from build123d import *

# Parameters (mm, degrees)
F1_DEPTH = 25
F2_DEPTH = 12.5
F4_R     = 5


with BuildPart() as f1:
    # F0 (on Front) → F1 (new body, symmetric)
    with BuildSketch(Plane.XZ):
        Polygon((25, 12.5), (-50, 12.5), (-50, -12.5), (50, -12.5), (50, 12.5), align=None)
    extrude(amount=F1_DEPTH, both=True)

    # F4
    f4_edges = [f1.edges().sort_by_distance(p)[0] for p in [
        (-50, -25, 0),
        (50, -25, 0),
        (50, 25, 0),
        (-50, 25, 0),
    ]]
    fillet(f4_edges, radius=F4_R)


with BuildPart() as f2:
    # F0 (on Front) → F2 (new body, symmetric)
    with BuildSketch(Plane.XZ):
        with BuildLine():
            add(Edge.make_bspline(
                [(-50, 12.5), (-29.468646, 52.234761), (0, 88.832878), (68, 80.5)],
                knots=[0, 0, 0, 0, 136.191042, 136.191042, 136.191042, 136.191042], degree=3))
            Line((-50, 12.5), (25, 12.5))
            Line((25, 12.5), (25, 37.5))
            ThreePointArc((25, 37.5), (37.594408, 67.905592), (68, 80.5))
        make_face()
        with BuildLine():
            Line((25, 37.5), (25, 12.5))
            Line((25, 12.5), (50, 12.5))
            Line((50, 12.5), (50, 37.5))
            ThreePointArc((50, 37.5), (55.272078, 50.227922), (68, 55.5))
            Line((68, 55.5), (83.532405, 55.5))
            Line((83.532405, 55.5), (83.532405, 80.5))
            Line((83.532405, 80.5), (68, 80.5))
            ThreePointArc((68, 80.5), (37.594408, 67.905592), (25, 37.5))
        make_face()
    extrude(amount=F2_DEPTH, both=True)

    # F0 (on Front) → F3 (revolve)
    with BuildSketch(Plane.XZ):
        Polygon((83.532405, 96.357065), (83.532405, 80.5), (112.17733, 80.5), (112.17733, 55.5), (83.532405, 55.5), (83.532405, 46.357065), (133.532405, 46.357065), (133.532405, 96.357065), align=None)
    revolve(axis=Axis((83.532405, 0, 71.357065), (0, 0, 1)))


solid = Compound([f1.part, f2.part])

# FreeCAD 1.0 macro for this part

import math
import FreeCAD as App
import Part
import Sketcher

V = App.Vector
Q = App.Units.Quantity


def edges_at(feature, points):
    """Names of the edges that pass closest to the given points."""
    edges = feature.Shape.Edges
    near = lambda p: min(range(len(edges)), key=lambda i: edges[i].distToShape(Part.Vertex(*p))[0])
    return sorted({f"Edge{near(p) + 1}" for p in points})

doc = App.newDocument("Part")
body = doc.addObject("PartDesign::Body", "Body")

# Sketch on XZ plane
sketch1 = body.newObject("Sketcher::SketchObject", "Sketch")
sketch1.AttachmentSupport = (doc.getObject("XZ_Plane"), [""])
sketch1.MapMode = "FlatFace"
sketch1.addGeometry([
    Part.LineSegment(V(-50, 12, 0), V(-50, -12, 0)),
    Part.LineSegment(V(-50, -12, 0), V(50, -12, 0)),
    Part.LineSegment(V(50, -12, 0), V(50, 12, 0)),
    Part.LineSegment(V(50, 12, 0), V(-50, 12, 0)),
], False)
sketch1.addConstraint([
    Sketcher.Constraint("Coincident", 0, 2, 1, 1),
    Sketcher.Constraint("Coincident", 1, 2, 2, 1),
    Sketcher.Constraint("Coincident", 2, 2, 3, 1),
    Sketcher.Constraint("Coincident", 3, 2, 0, 1),
    Sketcher.Constraint("Vertical", 0),
    Sketcher.Constraint("Horizontal", 1),
    Sketcher.Constraint("Vertical", 2),
    Sketcher.Constraint("Horizontal", 3),
    Sketcher.Constraint("Symmetric", 0, 2, 2, 2, -1, 1),
    Sketcher.Constraint("DistanceX", 1, 1, 1, 2, Q("100 mm")),
    Sketcher.Constraint("DistanceY", 0, 2, 0, 1, Q("25 mm")),
])
pad1 = body.newObject("PartDesign::Pad", "Pad")
pad1.Profile = sketch1
pad1.Length = 50
pad1.Midplane = True
doc.recompute()

fillet = body.newObject("PartDesign::Fillet", "Fillet")
fillet.Base = (pad1, edges_at(pad1, [
    (-50, -25, 0),
    (50, -25, 0),
    (50, 25, 0),
    (-50, 25, 0),
]))
fillet.Radius = 5
body2 = doc.addObject("PartDesign::Body", "Body001")

# Sketch on XZ plane
sketch2 = body2.newObject("Sketcher::SketchObject", "Sketch001")
sketch2.AttachmentSupport = (doc.getObject("XZ_Plane001"), [""])
sketch2.MapMode = "FlatFace"
sketch2.addGeometry([
    Part.BSplineCurve([V(-50, 12.5, 0), V(-29.468646, 52.234761, 0), V(0, 88.832878, 0), V(68, 80.5, 0)], [4, 4], [0, 136.191042], False, 3, [1, 1, 1, 1], False),  # 0
    Part.LineSegment(V(-50, 12.5, 0), V(50, 12.5, 0)),  # 1
    Part.LineSegment(V(50, 12.5, 0), V(50, 37.5, 0)),  # 2
    Part.ArcOfCircle(Part.Circle(V(68, 37.5, 0), V(0, 0, 1), 18), math.radians(90.000001), math.radians(179.999999)),  # 3
    Part.LineSegment(V(68, 55.5, 0), V(83.532405, 55.5, 0)),  # 4
    Part.LineSegment(V(83.532405, 55.5, 0), V(83.532405, 80.5, 0)),  # 5
    Part.LineSegment(V(83.532405, 80.5, 0), V(68, 80.5, 0)),  # 6
], False)
sketch2.addConstraint([
    Sketcher.Constraint("Block", 0),
    Sketcher.Constraint("Coincident", 0, 1, 1, 1),
    Sketcher.Constraint("Coincident", 1, 2, 2, 1),
    Sketcher.Constraint("Tangent", 2, 2, 3, 2),
    Sketcher.Constraint("Tangent", 3, 1, 4, 1),
    Sketcher.Constraint("Coincident", 4, 2, 5, 1),
    Sketcher.Constraint("Coincident", 5, 2, 6, 1),
    Sketcher.Constraint("Coincident", 6, 2, 0, 2),
    Sketcher.Constraint("Horizontal", 1),
    Sketcher.Constraint("Vertical", 2),
    Sketcher.Constraint("Horizontal", 4),
    Sketcher.Constraint("Vertical", 5),
    Sketcher.Constraint("Horizontal", 6),
    Sketcher.Constraint("Vertical", 3, 1, 6, 2),
    Sketcher.Constraint("Equal", 2, 5),
    Sketcher.Constraint("Radius", 3, Q("18 mm")),
    Sketcher.Constraint("DistanceX", 4, 1, 4, 2, Q("15.532405 mm")),
])
pad2 = body2.newObject("PartDesign::Pad", "Pad001")
pad2.Profile = sketch2
pad2.Length = 25
pad2.Midplane = True

# Sketch on XZ plane
sketch3 = body2.newObject("Sketcher::SketchObject", "Sketch002")
sketch3.AttachmentSupport = (doc.getObject("XZ_Plane001"), [""])
sketch3.MapMode = "FlatFace"
sketch3.addGeometry([
    Part.LineSegment(V(84, 96, 0), V(84, 80, 0)),  # 0
    Part.LineSegment(V(84, 80, 0), V(112, 80, 0)),  # 1
    Part.LineSegment(V(112, 80, 0), V(112, 56, 0)),  # 2
    Part.LineSegment(V(112, 56, 0), V(84, 56, 0)),  # 3
    Part.LineSegment(V(84, 56, 0), V(84, 46, 0)),  # 4
    Part.LineSegment(V(84, 46, 0), V(134, 46, 0)),  # 5
    Part.LineSegment(V(134, 46, 0), V(134, 96, 0)),  # 6
    Part.LineSegment(V(134, 96, 0), V(84, 96, 0)),  # 7
], False)
sketch3.addGeometry(Part.LineSegment(V(84, 46, 0), V(84, 96, 0)), True)  # axis
sketch3.addConstraint([
    Sketcher.Constraint("Coincident", 0, 2, 1, 1),
    Sketcher.Constraint("Coincident", 1, 2, 2, 1),
    Sketcher.Constraint("Coincident", 2, 2, 3, 1),
    Sketcher.Constraint("Coincident", 3, 2, 4, 1),
    Sketcher.Constraint("Coincident", 4, 2, 5, 1),
    Sketcher.Constraint("Coincident", 5, 2, 6, 1),
    Sketcher.Constraint("Coincident", 6, 2, 7, 1),
    Sketcher.Constraint("Coincident", 7, 2, 0, 1),
    Sketcher.Constraint("Vertical", 0),
    Sketcher.Constraint("Horizontal", 1),
    Sketcher.Constraint("Vertical", 2),
    Sketcher.Constraint("Horizontal", 3),
    Sketcher.Constraint("Vertical", 4),
    Sketcher.Constraint("Horizontal", 5),
    Sketcher.Constraint("Vertical", 6),
    Sketcher.Constraint("Horizontal", 7),
    Sketcher.Constraint("Vertical", 8),
    Sketcher.Constraint("Coincident", 8, 1, 4, 2),
    Sketcher.Constraint("Coincident", 8, 2, 7, 2),
    Sketcher.Constraint("Equal", 7, 6),
    Sketcher.Constraint("DistanceX", 5, 1, 5, 2, Q("50 mm")),
    Sketcher.Constraint("DistanceY", 2, 2, 2, 1, Q("25 mm")),
    Sketcher.Constraint("DistanceY", -1, 1, 0, 2, Q("80.5 mm")),
    Sketcher.Constraint("DistanceX", 1, 1, 1, 2, Q("28.644925 mm")),
    Sketcher.Constraint("DistanceY", 0, 2, 0, 1, Q("15.857065 mm")),
    Sketcher.Constraint("DistanceX", -1, 1, 1, 2, Q("112.17733 mm")),
])
revolution = body2.newObject("PartDesign::Revolution", "Revolution")
revolution.Profile = sketch3
revolution.ReferenceAxis = (sketch3, ["Axis0"])
revolution.Angle = 360

doc.recompute()
